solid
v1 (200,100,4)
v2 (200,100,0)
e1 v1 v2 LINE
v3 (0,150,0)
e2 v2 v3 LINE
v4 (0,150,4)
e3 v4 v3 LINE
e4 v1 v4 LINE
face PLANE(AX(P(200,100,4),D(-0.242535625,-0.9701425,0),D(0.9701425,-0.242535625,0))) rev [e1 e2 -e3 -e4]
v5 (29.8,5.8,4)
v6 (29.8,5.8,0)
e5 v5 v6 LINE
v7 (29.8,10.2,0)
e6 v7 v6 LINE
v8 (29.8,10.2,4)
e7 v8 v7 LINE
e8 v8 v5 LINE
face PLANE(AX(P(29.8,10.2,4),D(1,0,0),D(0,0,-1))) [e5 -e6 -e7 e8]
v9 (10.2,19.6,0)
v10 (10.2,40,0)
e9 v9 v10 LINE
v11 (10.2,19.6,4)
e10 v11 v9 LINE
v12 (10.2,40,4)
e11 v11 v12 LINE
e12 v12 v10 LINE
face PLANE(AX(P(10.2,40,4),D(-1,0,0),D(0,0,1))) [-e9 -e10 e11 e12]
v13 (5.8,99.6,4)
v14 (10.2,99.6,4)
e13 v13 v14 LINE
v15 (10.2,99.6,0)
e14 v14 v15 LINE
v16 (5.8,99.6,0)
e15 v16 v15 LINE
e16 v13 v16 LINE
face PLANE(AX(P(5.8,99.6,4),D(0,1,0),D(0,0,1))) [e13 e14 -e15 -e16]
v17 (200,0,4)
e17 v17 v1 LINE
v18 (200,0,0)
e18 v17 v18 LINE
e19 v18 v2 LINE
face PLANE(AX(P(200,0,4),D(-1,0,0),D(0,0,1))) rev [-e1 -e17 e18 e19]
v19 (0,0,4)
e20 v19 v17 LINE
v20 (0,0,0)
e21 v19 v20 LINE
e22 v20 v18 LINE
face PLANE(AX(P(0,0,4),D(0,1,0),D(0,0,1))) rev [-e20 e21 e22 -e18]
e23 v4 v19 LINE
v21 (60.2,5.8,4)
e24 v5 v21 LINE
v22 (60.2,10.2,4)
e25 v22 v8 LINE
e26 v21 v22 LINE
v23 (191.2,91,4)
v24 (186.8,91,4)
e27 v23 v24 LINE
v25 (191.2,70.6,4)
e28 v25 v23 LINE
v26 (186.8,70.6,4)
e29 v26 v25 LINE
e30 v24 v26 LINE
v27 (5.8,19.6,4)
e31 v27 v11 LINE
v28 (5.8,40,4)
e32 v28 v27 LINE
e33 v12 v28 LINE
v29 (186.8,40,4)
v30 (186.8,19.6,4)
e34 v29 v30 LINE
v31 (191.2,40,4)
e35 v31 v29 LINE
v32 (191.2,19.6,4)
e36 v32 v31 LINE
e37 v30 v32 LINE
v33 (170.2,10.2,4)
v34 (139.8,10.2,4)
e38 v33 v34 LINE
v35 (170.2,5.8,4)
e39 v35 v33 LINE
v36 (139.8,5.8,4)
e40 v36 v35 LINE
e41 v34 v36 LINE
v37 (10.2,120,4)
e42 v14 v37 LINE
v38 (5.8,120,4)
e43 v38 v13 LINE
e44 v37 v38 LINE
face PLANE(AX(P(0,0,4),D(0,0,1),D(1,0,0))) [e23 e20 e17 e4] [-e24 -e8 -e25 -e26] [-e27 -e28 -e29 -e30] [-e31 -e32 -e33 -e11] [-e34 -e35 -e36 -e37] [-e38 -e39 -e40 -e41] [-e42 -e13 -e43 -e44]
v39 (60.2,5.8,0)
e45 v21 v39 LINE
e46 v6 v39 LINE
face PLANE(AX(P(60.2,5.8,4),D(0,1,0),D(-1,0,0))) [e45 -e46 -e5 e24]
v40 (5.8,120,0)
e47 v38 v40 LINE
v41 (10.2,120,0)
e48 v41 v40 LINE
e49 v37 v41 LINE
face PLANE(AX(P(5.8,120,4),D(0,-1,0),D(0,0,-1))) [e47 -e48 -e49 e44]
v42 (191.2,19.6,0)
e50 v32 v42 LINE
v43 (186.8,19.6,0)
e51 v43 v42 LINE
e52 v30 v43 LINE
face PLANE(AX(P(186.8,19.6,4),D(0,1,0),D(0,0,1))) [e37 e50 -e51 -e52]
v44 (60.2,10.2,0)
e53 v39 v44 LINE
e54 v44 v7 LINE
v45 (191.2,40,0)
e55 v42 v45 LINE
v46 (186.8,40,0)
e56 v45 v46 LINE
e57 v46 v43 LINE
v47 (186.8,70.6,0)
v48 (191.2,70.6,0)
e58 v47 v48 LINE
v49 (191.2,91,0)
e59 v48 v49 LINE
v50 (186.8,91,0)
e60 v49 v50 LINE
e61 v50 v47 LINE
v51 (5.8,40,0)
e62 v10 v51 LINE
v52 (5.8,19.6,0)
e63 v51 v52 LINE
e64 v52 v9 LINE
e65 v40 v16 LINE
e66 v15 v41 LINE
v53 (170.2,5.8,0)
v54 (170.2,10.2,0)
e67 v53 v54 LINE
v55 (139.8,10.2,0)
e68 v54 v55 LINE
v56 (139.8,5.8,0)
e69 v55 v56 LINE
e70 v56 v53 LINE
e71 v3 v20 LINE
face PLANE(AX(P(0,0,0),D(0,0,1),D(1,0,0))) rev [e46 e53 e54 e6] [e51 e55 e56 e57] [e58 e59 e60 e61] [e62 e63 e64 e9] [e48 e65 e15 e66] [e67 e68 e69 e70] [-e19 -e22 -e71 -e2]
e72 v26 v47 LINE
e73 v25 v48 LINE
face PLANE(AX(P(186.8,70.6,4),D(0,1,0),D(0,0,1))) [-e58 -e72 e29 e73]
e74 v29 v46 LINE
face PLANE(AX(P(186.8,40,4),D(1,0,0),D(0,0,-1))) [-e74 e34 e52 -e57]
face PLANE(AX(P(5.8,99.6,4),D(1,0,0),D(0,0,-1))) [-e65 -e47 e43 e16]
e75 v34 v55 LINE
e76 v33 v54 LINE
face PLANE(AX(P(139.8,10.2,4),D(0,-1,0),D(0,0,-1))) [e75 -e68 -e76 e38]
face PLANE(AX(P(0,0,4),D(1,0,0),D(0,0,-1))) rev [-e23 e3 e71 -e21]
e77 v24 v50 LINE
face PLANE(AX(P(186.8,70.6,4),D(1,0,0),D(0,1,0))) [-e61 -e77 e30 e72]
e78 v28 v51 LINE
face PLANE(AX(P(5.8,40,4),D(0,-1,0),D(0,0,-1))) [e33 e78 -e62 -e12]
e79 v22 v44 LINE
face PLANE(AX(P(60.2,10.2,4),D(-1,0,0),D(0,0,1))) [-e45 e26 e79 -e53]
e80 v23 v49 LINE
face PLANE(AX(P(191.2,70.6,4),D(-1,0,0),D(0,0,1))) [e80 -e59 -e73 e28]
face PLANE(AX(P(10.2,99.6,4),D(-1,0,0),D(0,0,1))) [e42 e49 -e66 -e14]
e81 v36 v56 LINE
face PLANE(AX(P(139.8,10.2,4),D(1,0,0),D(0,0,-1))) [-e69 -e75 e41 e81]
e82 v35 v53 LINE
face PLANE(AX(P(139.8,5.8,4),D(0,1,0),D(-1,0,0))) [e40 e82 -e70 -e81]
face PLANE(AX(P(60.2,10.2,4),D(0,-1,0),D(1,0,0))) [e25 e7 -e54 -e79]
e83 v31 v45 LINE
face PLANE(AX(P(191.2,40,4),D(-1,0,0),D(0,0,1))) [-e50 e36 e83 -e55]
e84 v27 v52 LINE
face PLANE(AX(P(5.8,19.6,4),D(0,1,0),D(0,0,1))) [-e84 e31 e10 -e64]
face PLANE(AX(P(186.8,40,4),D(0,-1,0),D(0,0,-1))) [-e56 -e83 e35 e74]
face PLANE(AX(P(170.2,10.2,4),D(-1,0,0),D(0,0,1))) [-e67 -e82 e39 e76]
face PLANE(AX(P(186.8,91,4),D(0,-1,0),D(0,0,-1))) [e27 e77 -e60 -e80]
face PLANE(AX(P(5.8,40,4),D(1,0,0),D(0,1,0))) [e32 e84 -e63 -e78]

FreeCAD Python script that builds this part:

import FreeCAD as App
import Part
import Sketcher
Q = App.Units.Quantity

doc = App.newDocument("Part")
body = doc.addObject("PartDesign::Body", "Body")

# Sketch on XY plane
sketch1 = doc.addObject("Sketcher::SketchObject", "Sketch")
body.addObject(sketch1)
sketch1.AttachmentSupport = (doc.XY_Plane, [""])
sketch1.MapMode = "FlatFace"
sketch1.addGeometry(Part.LineSegment(App.Vector(0, 150, 0), App.Vector(0, 0, 0)), False)
sketch1.addGeometry(Part.LineSegment(App.Vector(0, 0, 0), App.Vector(200, 0, 0)), False)
sketch1.addGeometry(Part.LineSegment(App.Vector(200, 0, 0), App.Vector(200, 100, 0)), False)
sketch1.addGeometry(Part.LineSegment(App.Vector(200, 100, 0), App.Vector(0, 150, 0)), False)
sketch1.addGeometry(Part.LineSegment(App.Vector(139.8, 5.8, 0), App.Vector(139.8, 10.2, 0)), False)
sketch1.addGeometry(Part.LineSegment(App.Vector(139.8, 10.2, 0), App.Vector(170.2, 10.2, 0)), False)
sketch1.addGeometry(Part.LineSegment(App.Vector(170.2, 10.2, 0), App.Vector(170.2, 5.8, 0)), False)
sketch1.addGeometry(Part.LineSegment(App.Vector(170.2, 5.8, 0), App.Vector(139.8, 5.8, 0)), False)
sketch1.addGeometry(Part.LineSegment(App.Vector(186.8, 19.6, 0), App.Vector(186.8, 40, 0)), False)
sketch1.addGeometry(Part.LineSegment(App.Vector(186.8, 40, 0), App.Vector(191.2, 40, 0)), False)
sketch1.addGeometry(Part.LineSegment(App.Vector(191.2, 40, 0), App.Vector(191.2, 19.6, 0)), False)
sketch1.addGeometry(Part.LineSegment(App.Vector(191.2, 19.6, 0), App.Vector(186.8, 19.6, 0)), False)
sketch1.addGeometry(Part.LineSegment(App.Vector(29.8, 5.8, 0), App.Vector(29.8, 10.2, 0)), False)
sketch1.addGeometry(Part.LineSegment(App.Vector(29.8, 10.2, 0), App.Vector(60.2, 10.2, 0)), False)
sketch1.addGeometry(Part.LineSegment(App.Vector(60.2, 10.2, 0), App.Vector(60.2, 5.8, 0)), False)
sketch1.addGeometry(Part.LineSegment(App.Vector(60.2, 5.8, 0), App.Vector(29.8, 5.8, 0)), False)
sketch1.addGeometry(Part.LineSegment(App.Vector(5.8, 19.6, 0), App.Vector(5.8, 40, 0)), False)
sketch1.addGeometry(Part.LineSegment(App.Vector(5.8, 40, 0), App.Vector(10.2, 40, 0)), False)
sketch1.addGeometry(Part.LineSegment(App.Vector(10.2, 40, 0), App.Vector(10.2, 19.6, 0)), False)
sketch1.addGeometry(Part.LineSegment(App.Vector(10.2, 19.6, 0), App.Vector(5.8, 19.6, 0)), False)
sketch1.addGeometry(Part.LineSegment(App.Vector(186.8, 70.6, 0), App.Vector(186.8, 91, 0)), False)
sketch1.addGeometry(Part.LineSegment(App.Vector(186.8, 91, 0), App.Vector(191.2, 91, 0)), False)
sketch1.addGeometry(Part.LineSegment(App.Vector(191.2, 91, 0), App.Vector(191.2, 70.6, 0)), False)
sketch1.addGeometry(Part.LineSegment(App.Vector(191.2, 70.6, 0), App.Vector(186.8, 70.6, 0)), False)
sketch1.addGeometry(Part.LineSegment(App.Vector(5.8, 99.6, 0), App.Vector(5.8, 120, 0)), False)
sketch1.addGeometry(Part.LineSegment(App.Vector(5.8, 120, 0), App.Vector(10.2, 120, 0)), False)
sketch1.addGeometry(Part.LineSegment(App.Vector(10.2, 120, 0), App.Vector(10.2, 99.6, 0)), False)
sketch1.addGeometry(Part.LineSegment(App.Vector(10.2, 99.6, 0), App.Vector(5.8, 99.6, 0)), False)
sketch1.addConstraint(Sketcher.Constraint("Coincident", 0, 2, 1, 1))
sketch1.addConstraint(Sketcher.Constraint("Coincident", 1, 2, 2, 1))
sketch1.addConstraint(Sketcher.Constraint("Coincident", 2, 2, 3, 1))
sketch1.addConstraint(Sketcher.Constraint("Coincident", 3, 2, 0, 1))
sketch1.addConstraint(Sketcher.Constraint("Coincident", 4, 2, 5, 1))
sketch1.addConstraint(Sketcher.Constraint("Coincident", 5, 2, 6, 1))
sketch1.addConstraint(Sketcher.Constraint("Coincident", 6, 2, 7, 1))
sketch1.addConstraint(Sketcher.Constraint("Coincident", 7, 2, 4, 1))
sketch1.addConstraint(Sketcher.Constraint("Coincident", 8, 2, 9, 1))
sketch1.addConstraint(Sketcher.Constraint("Coincident", 9, 2, 10, 1))
sketch1.addConstraint(Sketcher.Constraint("Coincident", 10, 2, 11, 1))
sketch1.addConstraint(Sketcher.Constraint("Coincident", 11, 2, 8, 1))
sketch1.addConstraint(Sketcher.Constraint("Coincident", 12, 2, 13, 1))
sketch1.addConstraint(Sketcher.Constraint("Coincident", 13, 2, 14, 1))
sketch1.addConstraint(Sketcher.Constraint("Coincident", 14, 2, 15, 1))
sketch1.addConstraint(Sketcher.Constraint("Coincident", 15, 2, 12, 1))
sketch1.addConstraint(Sketcher.Constraint("Coincident", 16, 2, 17, 1))
sketch1.addConstraint(Sketcher.Constraint("Coincident", 17, 2, 18, 1))
sketch1.addConstraint(Sketcher.Constraint("Coincident", 18, 2, 19, 1))
sketch1.addConstraint(Sketcher.Constraint("Coincident", 19, 2, 16, 1))
sketch1.addConstraint(Sketcher.Constraint("Coincident", 20, 2, 21, 1))
sketch1.addConstraint(Sketcher.Constraint("Coincident", 21, 2, 22, 1))
sketch1.addConstraint(Sketcher.Constraint("Coincident", 22, 2, 23, 1))
sketch1.addConstraint(Sketcher.Constraint("Coincident", 23, 2, 20, 1))
sketch1.addConstraint(Sketcher.Constraint("Coincident", 24, 2, 25, 1))
sketch1.addConstraint(Sketcher.Constraint("Coincident", 25, 2, 26, 1))
sketch1.addConstraint(Sketcher.Constraint("Coincident", 26, 2, 27, 1))
sketch1.addConstraint(Sketcher.Constraint("Coincident", 27, 2, 24, 1))
sketch1.addConstraint(Sketcher.Constraint("Vertical", 0))
sketch1.addConstraint(Sketcher.Constraint("Horizontal", 1))
sketch1.addConstraint(Sketcher.Constraint("Vertical", 2))
sketch1.addConstraint(Sketcher.Constraint("Vertical", 4))
sketch1.addConstraint(Sketcher.Constraint("Horizontal", 5))
sketch1.addConstraint(Sketcher.Constraint("Vertical", 6))
sketch1.addConstraint(Sketcher.Constraint("Horizontal", 7))
sketch1.addConstraint(Sketcher.Constraint("Vertical", 8))
sketch1.addConstraint(Sketcher.Constraint("Horizontal", 9))
sketch1.addConstraint(Sketcher.Constraint("Vertical", 10))
sketch1.addConstraint(Sketcher.Constraint("Horizontal", 11))
sketch1.addConstraint(Sketcher.Constraint("Vertical", 12))
sketch1.addConstraint(Sketcher.Constraint("Horizontal", 13))
sketch1.addConstraint(Sketcher.Constraint("Vertical", 14))
sketch1.addConstraint(Sketcher.Constraint("Horizontal", 15))
sketch1.addConstraint(Sketcher.Constraint("Vertical", 16))
sketch1.addConstraint(Sketcher.Constraint("Horizontal", 17))
sketch1.addConstraint(Sketcher.Constraint("Vertical", 18))
sketch1.addConstraint(Sketcher.Constraint("Horizontal", 19))
sketch1.addConstraint(Sketcher.Constraint("Vertical", 20))
sketch1.addConstraint(Sketcher.Constraint("Horizontal", 21))
sketch1.addConstraint(Sketcher.Constraint("Vertical", 22))
sketch1.addConstraint(Sketcher.Constraint("Horizontal", 23))
sketch1.addConstraint(Sketcher.Constraint("Vertical", 24))
sketch1.addConstraint(Sketcher.Constraint("Horizontal", 25))
sketch1.addConstraint(Sketcher.Constraint("Vertical", 26))
sketch1.addConstraint(Sketcher.Constraint("Horizontal", 27))
sketch1.addConstraint(Sketcher.Constraint("Coincident", 0, 2, -1, 1))
sketch1.addConstraint(Sketcher.Constraint("Horizontal", 5, 2, 12, 2))
sketch1.addConstraint(Sketcher.Constraint("Horizontal", 7, 2, 14, 2))
sketch1.addConstraint(Sketcher.Constraint("Horizontal", 9, 2, 16, 2))
sketch1.addConstraint(Sketcher.Constraint("Horizontal", 11, 2, 18, 2))
sketch1.addConstraint(Sketcher.Constraint("Vertical", 11, 2, 20, 2))
sketch1.addConstraint(Sketcher.Constraint("Vertical", 10, 2, 21, 2))
sketch1.addConstraint(Sketcher.Constraint("Vertical", 19, 2, 24, 2))
sketch1.addConstraint(Sketcher.Constraint("Vertical", 18, 2, 25, 2))
sketch1.addConstraint(Sketcher.Constraint("Equal", 7, 13))
sketch1.addConstraint(Sketcher.Constraint("Equal", 11, 17))
sketch1.addConstraint(Sketcher.Constraint("Equal", 27, 4))
sketch1.addConstraint(Sketcher.Constraint("Equal", 18, 20))
sketch1.addConstraint(Sketcher.Constraint("Equal", 22, 24))
sketch1.addConstraint(Sketcher.Constraint("DistanceX", 1, 1, 1, 2, Q("200 mm")))
sketch1.addConstraint(Sketcher.Constraint("DistanceY", 0, 2, 0, 1, Q("150 mm")))
sketch1.addConstraint(Sketcher.Constraint("DistanceY", 2, 1, 2, 2, Q("100 mm")))
sketch1.addConstraint(Sketcher.Constraint("DistanceX", 5, 1, 5, 2, Q("30.4 mm")))
sketch1.addConstraint(Sketcher.Constraint("DistanceX", 9, 1, 9, 2, Q("4.4 mm")))
sketch1.addConstraint(Sketcher.Constraint("DistanceY", 8, 1, 8, 2, Q("20.4 mm")))
sketch1.addConstraint(Sketcher.Constraint("DistanceY", -1, 1, 8, 2, Q("40 mm")))
sketch1.addConstraint(Sketcher.Constraint("DistanceY", -1, 1, 20, 2, Q("91 mm")))
sketch1.addConstraint(Sketcher.Constraint("DistanceY", -1, 1, 24, 2, Q("120 mm")))
sketch1.addConstraint(Sketcher.Constraint("DistanceX", 4, 2, 8, 2, Q("47 mm")))
sketch1.addConstraint(Sketcher.Constraint("DistanceX", 12, 2, 4, 2, Q("110 mm")))
sketch1.addConstraint(Sketcher.Constraint("DistanceX", 16, 2, 12, 2, Q("24 mm")))
sketch1.addConstraint(Sketcher.Constraint("DistanceX", -1, 1, 4, 2, Q("139.8 mm")))
sketch1.addConstraint(Sketcher.Constraint("DistanceY", -1, 1, 4, 2, Q("10.2 mm")))
pad1 = doc.addObject("PartDesign::Pad", "Pad")
body.addObject(pad1)
pad1.Profile = sketch1
pad1.Length = 4

doc.recompute()
